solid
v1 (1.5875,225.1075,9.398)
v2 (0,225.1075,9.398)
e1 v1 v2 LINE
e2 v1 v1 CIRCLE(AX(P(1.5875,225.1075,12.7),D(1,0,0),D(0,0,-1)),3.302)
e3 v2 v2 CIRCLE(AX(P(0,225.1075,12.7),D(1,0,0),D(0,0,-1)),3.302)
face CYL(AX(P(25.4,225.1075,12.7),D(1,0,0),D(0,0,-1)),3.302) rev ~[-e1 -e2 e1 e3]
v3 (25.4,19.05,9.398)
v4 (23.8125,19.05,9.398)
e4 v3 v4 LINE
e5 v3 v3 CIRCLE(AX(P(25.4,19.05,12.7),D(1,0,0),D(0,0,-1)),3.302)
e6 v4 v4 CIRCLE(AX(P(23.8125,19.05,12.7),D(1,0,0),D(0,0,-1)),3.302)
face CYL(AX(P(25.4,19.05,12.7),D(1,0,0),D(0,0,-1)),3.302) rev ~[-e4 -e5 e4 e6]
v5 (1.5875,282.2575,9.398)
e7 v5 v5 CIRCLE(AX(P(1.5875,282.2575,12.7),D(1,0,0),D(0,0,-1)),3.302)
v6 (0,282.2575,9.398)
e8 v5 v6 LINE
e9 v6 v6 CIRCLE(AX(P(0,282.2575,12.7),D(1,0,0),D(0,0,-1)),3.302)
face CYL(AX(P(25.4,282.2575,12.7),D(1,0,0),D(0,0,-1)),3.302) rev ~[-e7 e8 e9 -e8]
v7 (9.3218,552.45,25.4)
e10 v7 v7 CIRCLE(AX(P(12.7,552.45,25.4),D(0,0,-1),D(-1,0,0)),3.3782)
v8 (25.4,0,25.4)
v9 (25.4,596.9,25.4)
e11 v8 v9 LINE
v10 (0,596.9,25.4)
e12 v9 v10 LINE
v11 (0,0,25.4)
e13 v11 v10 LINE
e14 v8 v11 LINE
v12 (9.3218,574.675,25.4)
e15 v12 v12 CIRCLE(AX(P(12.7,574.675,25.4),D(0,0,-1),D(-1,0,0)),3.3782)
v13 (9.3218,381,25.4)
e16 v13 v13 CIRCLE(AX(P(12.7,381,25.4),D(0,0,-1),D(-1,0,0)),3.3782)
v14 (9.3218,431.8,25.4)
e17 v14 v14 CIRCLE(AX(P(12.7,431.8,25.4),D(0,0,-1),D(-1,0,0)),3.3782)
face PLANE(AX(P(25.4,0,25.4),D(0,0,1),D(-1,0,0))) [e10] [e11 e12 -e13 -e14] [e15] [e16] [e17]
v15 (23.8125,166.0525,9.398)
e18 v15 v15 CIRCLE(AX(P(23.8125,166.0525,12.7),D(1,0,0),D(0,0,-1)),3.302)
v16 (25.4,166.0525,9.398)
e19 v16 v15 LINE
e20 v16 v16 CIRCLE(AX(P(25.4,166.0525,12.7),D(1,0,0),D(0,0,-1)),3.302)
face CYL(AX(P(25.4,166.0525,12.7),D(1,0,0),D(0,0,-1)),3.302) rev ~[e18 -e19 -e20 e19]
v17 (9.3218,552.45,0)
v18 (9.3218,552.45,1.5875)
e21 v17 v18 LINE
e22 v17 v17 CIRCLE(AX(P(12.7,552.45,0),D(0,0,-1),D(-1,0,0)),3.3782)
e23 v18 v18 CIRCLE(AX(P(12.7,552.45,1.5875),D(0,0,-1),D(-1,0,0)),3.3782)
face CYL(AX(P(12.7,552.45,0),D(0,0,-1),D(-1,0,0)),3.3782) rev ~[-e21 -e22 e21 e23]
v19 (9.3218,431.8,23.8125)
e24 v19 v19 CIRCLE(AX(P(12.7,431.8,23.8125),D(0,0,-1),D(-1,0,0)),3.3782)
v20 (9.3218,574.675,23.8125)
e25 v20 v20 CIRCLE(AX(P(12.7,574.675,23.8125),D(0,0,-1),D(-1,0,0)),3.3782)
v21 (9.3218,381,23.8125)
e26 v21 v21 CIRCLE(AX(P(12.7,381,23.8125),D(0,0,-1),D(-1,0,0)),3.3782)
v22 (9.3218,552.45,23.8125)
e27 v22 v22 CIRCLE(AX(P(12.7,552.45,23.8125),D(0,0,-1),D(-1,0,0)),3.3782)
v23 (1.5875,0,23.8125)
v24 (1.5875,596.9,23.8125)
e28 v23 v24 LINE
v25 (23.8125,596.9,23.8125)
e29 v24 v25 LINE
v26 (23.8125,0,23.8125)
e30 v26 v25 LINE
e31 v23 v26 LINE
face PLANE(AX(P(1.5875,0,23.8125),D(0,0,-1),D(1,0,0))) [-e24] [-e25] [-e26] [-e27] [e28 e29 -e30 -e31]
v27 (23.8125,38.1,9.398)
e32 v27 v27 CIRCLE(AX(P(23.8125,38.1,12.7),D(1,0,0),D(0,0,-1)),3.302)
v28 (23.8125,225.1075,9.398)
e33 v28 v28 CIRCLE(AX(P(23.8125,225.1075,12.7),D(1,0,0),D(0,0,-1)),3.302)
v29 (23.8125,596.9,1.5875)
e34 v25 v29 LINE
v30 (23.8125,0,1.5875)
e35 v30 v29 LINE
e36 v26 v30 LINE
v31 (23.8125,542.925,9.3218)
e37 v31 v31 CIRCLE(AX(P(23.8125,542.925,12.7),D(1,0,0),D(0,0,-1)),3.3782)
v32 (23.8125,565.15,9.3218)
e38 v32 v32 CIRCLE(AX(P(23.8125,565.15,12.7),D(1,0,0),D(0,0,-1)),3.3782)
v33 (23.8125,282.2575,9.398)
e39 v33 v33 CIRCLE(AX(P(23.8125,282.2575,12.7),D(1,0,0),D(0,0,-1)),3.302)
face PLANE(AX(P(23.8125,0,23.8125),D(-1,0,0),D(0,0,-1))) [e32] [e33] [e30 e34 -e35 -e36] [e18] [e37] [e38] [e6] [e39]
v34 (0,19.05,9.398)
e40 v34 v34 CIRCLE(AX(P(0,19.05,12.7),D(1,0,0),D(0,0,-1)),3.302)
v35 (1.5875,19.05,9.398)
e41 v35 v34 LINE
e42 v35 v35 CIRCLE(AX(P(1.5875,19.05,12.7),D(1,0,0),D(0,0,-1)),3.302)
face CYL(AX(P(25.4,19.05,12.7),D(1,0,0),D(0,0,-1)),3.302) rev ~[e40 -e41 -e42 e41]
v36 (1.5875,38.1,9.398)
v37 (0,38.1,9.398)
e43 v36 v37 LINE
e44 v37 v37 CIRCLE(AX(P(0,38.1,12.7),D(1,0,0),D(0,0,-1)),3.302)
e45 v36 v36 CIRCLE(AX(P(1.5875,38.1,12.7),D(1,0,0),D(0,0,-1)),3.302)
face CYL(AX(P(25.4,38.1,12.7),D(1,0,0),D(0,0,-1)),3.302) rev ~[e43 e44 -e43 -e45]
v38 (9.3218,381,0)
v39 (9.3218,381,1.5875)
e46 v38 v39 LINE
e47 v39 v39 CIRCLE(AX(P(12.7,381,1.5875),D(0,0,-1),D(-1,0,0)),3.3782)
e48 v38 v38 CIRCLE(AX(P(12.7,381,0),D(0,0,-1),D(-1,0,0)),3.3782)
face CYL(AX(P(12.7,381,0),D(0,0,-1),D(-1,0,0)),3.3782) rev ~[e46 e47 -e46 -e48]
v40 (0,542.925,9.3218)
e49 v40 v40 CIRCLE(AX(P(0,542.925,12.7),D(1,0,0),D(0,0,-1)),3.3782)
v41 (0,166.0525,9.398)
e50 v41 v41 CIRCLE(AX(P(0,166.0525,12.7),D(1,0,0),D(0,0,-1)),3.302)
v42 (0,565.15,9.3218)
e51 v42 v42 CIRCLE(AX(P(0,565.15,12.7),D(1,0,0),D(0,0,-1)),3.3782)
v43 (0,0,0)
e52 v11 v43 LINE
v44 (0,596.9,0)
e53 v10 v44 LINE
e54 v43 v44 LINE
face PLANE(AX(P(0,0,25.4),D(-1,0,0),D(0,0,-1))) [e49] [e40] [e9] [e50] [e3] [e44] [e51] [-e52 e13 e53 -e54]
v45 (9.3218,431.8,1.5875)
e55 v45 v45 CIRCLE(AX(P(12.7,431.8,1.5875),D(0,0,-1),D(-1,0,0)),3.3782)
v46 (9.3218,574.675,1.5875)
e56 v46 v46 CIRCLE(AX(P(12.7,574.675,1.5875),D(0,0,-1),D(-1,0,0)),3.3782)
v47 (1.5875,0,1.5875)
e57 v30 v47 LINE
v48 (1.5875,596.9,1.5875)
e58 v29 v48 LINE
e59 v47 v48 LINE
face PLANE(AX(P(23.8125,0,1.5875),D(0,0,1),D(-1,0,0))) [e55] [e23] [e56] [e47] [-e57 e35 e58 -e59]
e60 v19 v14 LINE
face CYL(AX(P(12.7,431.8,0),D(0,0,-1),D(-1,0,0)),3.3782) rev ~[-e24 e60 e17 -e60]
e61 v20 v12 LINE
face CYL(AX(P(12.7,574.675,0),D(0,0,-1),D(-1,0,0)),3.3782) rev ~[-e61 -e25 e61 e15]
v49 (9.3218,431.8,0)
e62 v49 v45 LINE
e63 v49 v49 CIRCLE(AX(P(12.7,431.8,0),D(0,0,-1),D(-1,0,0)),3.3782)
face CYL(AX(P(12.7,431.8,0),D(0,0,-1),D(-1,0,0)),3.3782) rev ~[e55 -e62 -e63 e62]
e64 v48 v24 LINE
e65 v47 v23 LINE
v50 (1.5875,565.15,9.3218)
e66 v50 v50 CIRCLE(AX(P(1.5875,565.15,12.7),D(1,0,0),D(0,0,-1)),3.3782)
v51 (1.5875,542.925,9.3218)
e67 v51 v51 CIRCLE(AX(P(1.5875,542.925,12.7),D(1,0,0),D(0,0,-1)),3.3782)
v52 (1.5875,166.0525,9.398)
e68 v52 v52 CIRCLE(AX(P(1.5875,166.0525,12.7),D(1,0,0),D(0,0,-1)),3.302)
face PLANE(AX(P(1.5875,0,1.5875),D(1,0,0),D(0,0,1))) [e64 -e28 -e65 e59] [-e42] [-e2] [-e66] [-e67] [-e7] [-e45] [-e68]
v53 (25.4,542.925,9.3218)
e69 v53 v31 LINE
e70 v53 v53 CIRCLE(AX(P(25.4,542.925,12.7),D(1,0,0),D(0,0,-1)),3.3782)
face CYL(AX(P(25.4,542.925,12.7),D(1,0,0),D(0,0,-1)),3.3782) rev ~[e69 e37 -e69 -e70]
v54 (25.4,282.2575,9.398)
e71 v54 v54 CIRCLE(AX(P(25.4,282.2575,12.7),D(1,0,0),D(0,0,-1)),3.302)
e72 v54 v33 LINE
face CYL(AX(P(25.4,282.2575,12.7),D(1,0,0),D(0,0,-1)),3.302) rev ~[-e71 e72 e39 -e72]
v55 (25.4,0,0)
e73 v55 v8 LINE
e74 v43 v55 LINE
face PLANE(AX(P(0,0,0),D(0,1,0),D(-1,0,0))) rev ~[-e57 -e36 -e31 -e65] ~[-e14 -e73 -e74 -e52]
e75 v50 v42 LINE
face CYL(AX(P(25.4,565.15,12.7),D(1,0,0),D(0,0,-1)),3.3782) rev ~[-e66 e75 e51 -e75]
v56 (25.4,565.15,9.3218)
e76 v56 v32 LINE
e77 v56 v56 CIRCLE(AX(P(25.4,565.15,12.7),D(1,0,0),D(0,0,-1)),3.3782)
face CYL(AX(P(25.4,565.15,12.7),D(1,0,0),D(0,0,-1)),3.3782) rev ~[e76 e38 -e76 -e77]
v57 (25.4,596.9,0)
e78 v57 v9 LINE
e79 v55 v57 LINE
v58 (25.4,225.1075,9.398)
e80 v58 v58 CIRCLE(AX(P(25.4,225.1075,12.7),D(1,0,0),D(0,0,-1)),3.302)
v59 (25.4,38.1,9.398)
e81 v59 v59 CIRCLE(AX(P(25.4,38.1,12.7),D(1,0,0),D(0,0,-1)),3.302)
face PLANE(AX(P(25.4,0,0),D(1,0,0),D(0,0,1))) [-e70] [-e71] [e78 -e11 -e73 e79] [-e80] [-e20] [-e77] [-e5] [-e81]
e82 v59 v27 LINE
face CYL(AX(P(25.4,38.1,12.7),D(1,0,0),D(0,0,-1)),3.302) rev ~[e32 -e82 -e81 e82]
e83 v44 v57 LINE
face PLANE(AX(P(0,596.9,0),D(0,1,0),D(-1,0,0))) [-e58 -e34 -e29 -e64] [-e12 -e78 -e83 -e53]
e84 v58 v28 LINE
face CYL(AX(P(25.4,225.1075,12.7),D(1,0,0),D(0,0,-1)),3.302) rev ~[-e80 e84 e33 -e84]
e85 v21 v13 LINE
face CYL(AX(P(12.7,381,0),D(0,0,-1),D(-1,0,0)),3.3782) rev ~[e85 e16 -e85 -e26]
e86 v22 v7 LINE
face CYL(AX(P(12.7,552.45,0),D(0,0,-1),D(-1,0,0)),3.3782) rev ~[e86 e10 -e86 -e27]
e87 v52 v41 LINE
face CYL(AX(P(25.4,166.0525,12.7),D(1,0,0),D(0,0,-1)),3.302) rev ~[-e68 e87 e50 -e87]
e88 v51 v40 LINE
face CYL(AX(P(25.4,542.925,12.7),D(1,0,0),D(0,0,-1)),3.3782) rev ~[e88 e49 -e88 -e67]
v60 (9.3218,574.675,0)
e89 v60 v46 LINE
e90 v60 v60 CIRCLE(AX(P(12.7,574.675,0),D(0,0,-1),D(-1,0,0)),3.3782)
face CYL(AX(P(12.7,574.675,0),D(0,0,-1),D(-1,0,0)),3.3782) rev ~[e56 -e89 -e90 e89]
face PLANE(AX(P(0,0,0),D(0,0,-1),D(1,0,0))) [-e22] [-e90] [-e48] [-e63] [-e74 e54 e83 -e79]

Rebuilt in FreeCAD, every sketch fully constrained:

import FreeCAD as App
import Part
import Sketcher

V = App.Vector
Q = App.Units.Quantity


def add_polygon(sketch, points):
    """Adds a closed chain of lines whose ends are joined by coincident constraints."""
    first, n = sketch.GeometryCount, len(points)
    for a, b in zip(points, points[1:] + points[:1]):
        sketch.addGeometry(Part.LineSegment(App.Vector(*a, 0), App.Vector(*b, 0)), False)
    for i in range(n):
        sketch.addConstraint(Sketcher.Constraint("Coincident", first + i, 2, first + (i + 1) % n, 1))

doc = App.newDocument("Part")
params = doc.addObject("Spreadsheet::Sheet", "Params")
for row, (alias, value) in enumerate([
    ("sketch1_width", "1 in"),
    ("pad1_length", "23.5 in"),
    ("sketch2_diameter", "0.266 in"),
    ("pocket1_length", "1 in"),
    ("sketch3_diameter", "0.26 in"),
    ("sketch3_diameter2", "0.266 in"),
    ("pocket2_length", "1 in"),
    ("sketch4_diameter", "0.266 in"),
    ("pocket3_length", "1 in"),
], start=1):
    params.set(f"A{row}", alias)
    params.set(f"B{row}", "=" + value)
    params.setAlias(f"B{row}", alias)

body = doc.addObject("PartDesign::Body", "Body")

# Sketch on XZ plane
sketch1 = doc.addObject("Sketcher::SketchObject", "Sketch")
body.addObject(sketch1)
sketch1.AttachmentSupport = (doc.XZ_Plane, [""])
sketch1.MapMode = "FlatFace"
add_polygon(sketch1, [(25.4, 0), (0, 0), (0, 25.4), (25.4, 25.4)])  # lines 0-3
add_polygon(sketch1, [(23.8125, 23.8125), (1.5875, 23.8125), (1.5875, 1.5875), (23.8125, 1.5875)])  # lines 4-7
sketch1.addConstraint([
    Sketcher.Constraint("Horizontal", 0),
    Sketcher.Constraint("Vertical", 1),
    Sketcher.Constraint("Horizontal", 2),
    Sketcher.Constraint("Vertical", 3),
    Sketcher.Constraint("Horizontal", 4),
    Sketcher.Constraint("Vertical", 5),
    Sketcher.Constraint("Horizontal", 6),
    Sketcher.Constraint("Vertical", 7),
    Sketcher.Constraint("Coincident", 0, 2, -1, 1),
    Sketcher.Constraint("Equal", 2, 1),
    Sketcher.Constraint("Equal", 6, 5),
    Sketcher.Constraint("DistanceX", 0, 2, 0, 1, Q("1 in")),
    Sketcher.Constraint("DistanceX", -1, 1, 4, 2, Q("0.0625 in")),
    Sketcher.Constraint("DistanceY", -1, 1, 5, 2, Q("0.0625 in")),
    Sketcher.Constraint("DistanceY", 4, 2, 1, 2, Q("0.0625 in")),
])
sketch1.setExpression("Constraints[19]", "Params.sketch1_width")
pad1 = doc.addObject("PartDesign::Pad", "Pad")
body.addObject(pad1)
pad1.Profile = sketch1
pad1.setExpression("Length", "Params.pad1_length")
pad1.Reversed = True

# Sketch on XY plane
sketch2 = doc.addObject("Sketcher::SketchObject", "Sketch001")
body.addObject(sketch2)
sketch2.AttachmentSupport = (doc.XY_Plane, [""])
sketch2.MapMode = "FlatFace"
sketch2.addGeometry([
    Part.Circle(V(12.7, 552.45, 0), V(0, 0, 1), 3.3782),
    Part.Circle(V(12.7, 574.675, 0), V(0, 0, 1), 3.3782),
], False)
sketch2.addConstraint([
    Sketcher.Constraint("Equal", 0, 1),
    Sketcher.Constraint("Vertical", 0, 3, 1, 3),
    Sketcher.Constraint("Diameter", 0, Q("0.266 in")),
    Sketcher.Constraint("DistanceX", -1, 1, 0, 3, Q("0.5 in")),
    Sketcher.Constraint("DistanceY", -1, 1, 0, 3, Q("21.75 in")),
    Sketcher.Constraint("DistanceY", -1, 1, 1, 3, Q("22.625 in")),
])
sketch2.setExpression("Constraints[2]", "Params.sketch2_diameter")
pocket1 = doc.addObject("PartDesign::Pocket", "Pocket")
body.addObject(pocket1)
pocket1.Profile = sketch2
pocket1.setExpression("Length", "Params.pocket1_length")
pocket1.Reversed = True

# Sketch on YZ plane
sketch3 = doc.addObject("Sketcher::SketchObject", "Sketch002")
body.addObject(sketch3)
sketch3.AttachmentSupport = (doc.YZ_Plane, [""])
sketch3.MapMode = "FlatFace"
sketch3.AttachmentOffset = App.Placement(V(0, 0, 1 * 25.4), App.Rotation())
sketch3.addGeometry([
    Part.Circle(V(565.15, 12.7, 0), V(0, 0, 1), 3.3782),  # 0
    Part.Circle(V(542.925, 12.7, 0), V(0, 0, 1), 3.3782),  # 1
    Part.Circle(V(19.05, 12.7, 0), V(0, 0, 1), 3.302),  # 2
    Part.Circle(V(38.1, 12.7, 0), V(0, 0, 1), 3.302),  # 3
    Part.Circle(V(166.0525, 12.7, 0), V(0, 0, 1), 3.302),  # 4
    Part.Circle(V(225.1075, 12.7, 0), V(0, 0, 1), 3.302),  # 5
    Part.Circle(V(282.2575, 12.7, 0), V(0, 0, 1), 3.302),  # 6
], False)
sketch3.addConstraint([
    Sketcher.Constraint("Equal", 0, 1),
    Sketcher.Constraint("Equal", 2, 3),
    Sketcher.Constraint("Equal", 3, 4),
    Sketcher.Constraint("Equal", 4, 5),
    Sketcher.Constraint("Equal", 5, 6),
    Sketcher.Constraint("Horizontal", 0, 3, 1, 3),
    Sketcher.Constraint("Horizontal", 1, 3, 2, 3),
    Sketcher.Constraint("Horizontal", 2, 3, 3, 3),
    Sketcher.Constraint("Horizontal", 3, 3, 4, 3),
    Sketcher.Constraint("Horizontal", 4, 3, 5, 3),
    Sketcher.Constraint("Horizontal", 5, 3, 6, 3),
    Sketcher.Constraint("Diameter", 2, Q("0.26 in")),
    Sketcher.Constraint("Diameter", 0, Q("0.266 in")),
    Sketcher.Constraint("DistanceY", -1, 1, 0, 3, Q("0.5 in")),
    Sketcher.Constraint("DistanceX", -1, 1, 3, 3, Q("1.5 in")),
    Sketcher.Constraint("DistanceX", 2, 3, 0, 3, Q("21.5 in")),
    Sketcher.Constraint("DistanceX", -1, 1, 0, 3, Q("22.25 in")),
    Sketcher.Constraint("DistanceX", 5, 3, 6, 3, Q("2.25 in")),
    Sketcher.Constraint("DistanceX", -1, 1, 1, 3, Q("21.375 in")),
    Sketcher.Constraint("DistanceX", 4, 3, 5, 3, Q("2.325 in")),
    Sketcher.Constraint("DistanceX", -1, 1, 4, 3, Q("6.5375 in")),
])
sketch3.setExpression("Constraints[11]", "Params.sketch3_diameter")
sketch3.setExpression("Constraints[12]", "Params.sketch3_diameter2")
pocket2 = doc.addObject("PartDesign::Pocket", "Pocket001")
body.addObject(pocket2)
pocket2.Profile = sketch3
pocket2.setExpression("Length", "Params.pocket2_length")

# Sketch on XY plane
sketch4 = doc.addObject("Sketcher::SketchObject", "Sketch003")
body.addObject(sketch4)
sketch4.AttachmentSupport = (doc.XY_Plane, [""])
sketch4.MapMode = "FlatFace"
sketch4.addGeometry([
    Part.Circle(V(12.7, 431.8, 0), V(0, 0, 1), 3.3782),
    Part.Circle(V(12.7, 381, 0), V(0, 0, 1), 3.3782),
], False)
sketch4.addConstraint([
    Sketcher.Constraint("Equal", 0, 1),
    Sketcher.Constraint("Vertical", 0, 3, 1, 3),
    Sketcher.Constraint("Diameter", 0, Q("0.266 in")),
    Sketcher.Constraint("DistanceY", -1, 1, 0, 3, Q("17 in")),
    Sketcher.Constraint("DistanceY", -1, 1, 1, 3, Q("15 in")),
    Sketcher.Constraint("DistanceX", -1, 1, 0, 3, Q("0.5 in")),
])
sketch4.setExpression("Constraints[2]", "Params.sketch4_diameter")
pocket3 = doc.addObject("PartDesign::Pocket", "Pocket002")
body.addObject(pocket3)
pocket3.Profile = sketch4
pocket3.setExpression("Length", "Params.pocket3_length")
pocket3.Reversed = True

doc.recompute()
